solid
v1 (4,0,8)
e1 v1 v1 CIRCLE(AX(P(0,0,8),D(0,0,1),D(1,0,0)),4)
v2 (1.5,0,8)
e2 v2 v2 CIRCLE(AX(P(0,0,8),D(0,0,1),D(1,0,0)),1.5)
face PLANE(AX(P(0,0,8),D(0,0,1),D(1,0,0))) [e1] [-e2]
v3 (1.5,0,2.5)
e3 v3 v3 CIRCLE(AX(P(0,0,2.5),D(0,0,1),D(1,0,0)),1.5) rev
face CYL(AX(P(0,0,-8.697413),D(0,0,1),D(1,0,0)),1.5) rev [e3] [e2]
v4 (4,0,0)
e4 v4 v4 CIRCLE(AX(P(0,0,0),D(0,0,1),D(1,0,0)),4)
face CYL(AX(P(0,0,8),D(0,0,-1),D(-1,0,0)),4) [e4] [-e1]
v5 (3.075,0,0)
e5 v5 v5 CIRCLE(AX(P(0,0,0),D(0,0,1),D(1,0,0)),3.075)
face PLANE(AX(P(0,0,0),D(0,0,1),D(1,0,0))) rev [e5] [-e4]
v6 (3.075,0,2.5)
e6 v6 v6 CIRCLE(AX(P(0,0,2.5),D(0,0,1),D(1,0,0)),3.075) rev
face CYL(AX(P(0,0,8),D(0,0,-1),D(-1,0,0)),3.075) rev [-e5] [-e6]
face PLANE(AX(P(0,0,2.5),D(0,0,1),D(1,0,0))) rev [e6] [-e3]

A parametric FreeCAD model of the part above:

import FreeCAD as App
import Part
import Sketcher
from FreeCAD import Vector
Q = App.Units.Quantity

doc = App.newDocument("Part")
params = doc.addObject("Spreadsheet::Sheet", "Params")
for row, (alias, value) in enumerate([
    ("sketch1_diameter", "8 mm"),
    ("sketch1_diameter2", "6.15 mm"),
    ("pad1_length", "8 mm"),
    ("sketch2_diameter", "3 mm"),
    ("sketch2_diameter2", "6.15 mm"),
    ("pad2_length", "5.5 mm"),
], start=1):
    params.set(f"A{row}", alias)
    params.set(f"B{row}", "=" + value)
    params.setAlias(f"B{row}", alias)

body = doc.addObject("PartDesign::Body", "Body")

sketch1 = doc.addObject("Sketcher::SketchObject", "Sketch")
body.addObject(sketch1)
sketch1.AttachmentSupport = (doc.XY_Plane, [""])
sketch1.MapMode = "FlatFace"
sketch1.addGeometry([
    Part.Circle(Vector(0, 0, 0), Vector(0, 0, 1), 4),
    Part.Circle(Vector(0, 0, 0), Vector(0, 0, 1), 3.075),
], False)
sketch1.addConstraint([
    Sketcher.Constraint("Coincident", 0, 3, -1, 1),
    Sketcher.Constraint("Coincident", 1, 3, -1, 1),
    Sketcher.Constraint("Diameter", 0, Q("8 mm")),
    Sketcher.Constraint("Diameter", 1, Q("6.15 mm")),
])
sketch1.setExpression("Constraints[2]", "Params.sketch1_diameter")
sketch1.setExpression("Constraints[3]", "Params.sketch1_diameter2")
pad1 = doc.addObject("PartDesign::Pad", "Pad")
body.addObject(pad1)
pad1.Profile = sketch1
pad1.setExpression("Length", "Params.pad1_length")

sketch2 = doc.addObject("Sketcher::SketchObject", "Sketch001")
body.addObject(sketch2)
sketch2.AttachmentSupport = (doc.XY_Plane, [""])
sketch2.MapMode = "FlatFace"
sketch2.AttachmentOffset = App.Placement(Vector(0, 0, 2.5), App.Rotation())
sketch2.addGeometry([
    Part.Circle(Vector(0, 0, 0), Vector(0, 0, 1), 3.075),
    Part.Circle(Vector(0, 0, 0), Vector(0, 0, 1), 1.5),
], False)
sketch2.addConstraint([
    Sketcher.Constraint("Coincident", 0, 3, -1, 1),
    Sketcher.Constraint("Coincident", 1, 3, -1, 1),
    Sketcher.Constraint("Diameter", 1, Q("3 mm")),
    Sketcher.Constraint("Diameter", 0, Q("6.15 mm")),
])
sketch2.setExpression("Constraints[2]", "Params.sketch2_diameter")
sketch2.setExpression("Constraints[3]", "Params.sketch2_diameter2")
pad2 = doc.addObject("PartDesign::Pad", "Pad001")
body.addObject(pad2)
pad2.Profile = sketch2
pad2.setExpression("Length", "Params.pad2_length")

doc.recompute()
